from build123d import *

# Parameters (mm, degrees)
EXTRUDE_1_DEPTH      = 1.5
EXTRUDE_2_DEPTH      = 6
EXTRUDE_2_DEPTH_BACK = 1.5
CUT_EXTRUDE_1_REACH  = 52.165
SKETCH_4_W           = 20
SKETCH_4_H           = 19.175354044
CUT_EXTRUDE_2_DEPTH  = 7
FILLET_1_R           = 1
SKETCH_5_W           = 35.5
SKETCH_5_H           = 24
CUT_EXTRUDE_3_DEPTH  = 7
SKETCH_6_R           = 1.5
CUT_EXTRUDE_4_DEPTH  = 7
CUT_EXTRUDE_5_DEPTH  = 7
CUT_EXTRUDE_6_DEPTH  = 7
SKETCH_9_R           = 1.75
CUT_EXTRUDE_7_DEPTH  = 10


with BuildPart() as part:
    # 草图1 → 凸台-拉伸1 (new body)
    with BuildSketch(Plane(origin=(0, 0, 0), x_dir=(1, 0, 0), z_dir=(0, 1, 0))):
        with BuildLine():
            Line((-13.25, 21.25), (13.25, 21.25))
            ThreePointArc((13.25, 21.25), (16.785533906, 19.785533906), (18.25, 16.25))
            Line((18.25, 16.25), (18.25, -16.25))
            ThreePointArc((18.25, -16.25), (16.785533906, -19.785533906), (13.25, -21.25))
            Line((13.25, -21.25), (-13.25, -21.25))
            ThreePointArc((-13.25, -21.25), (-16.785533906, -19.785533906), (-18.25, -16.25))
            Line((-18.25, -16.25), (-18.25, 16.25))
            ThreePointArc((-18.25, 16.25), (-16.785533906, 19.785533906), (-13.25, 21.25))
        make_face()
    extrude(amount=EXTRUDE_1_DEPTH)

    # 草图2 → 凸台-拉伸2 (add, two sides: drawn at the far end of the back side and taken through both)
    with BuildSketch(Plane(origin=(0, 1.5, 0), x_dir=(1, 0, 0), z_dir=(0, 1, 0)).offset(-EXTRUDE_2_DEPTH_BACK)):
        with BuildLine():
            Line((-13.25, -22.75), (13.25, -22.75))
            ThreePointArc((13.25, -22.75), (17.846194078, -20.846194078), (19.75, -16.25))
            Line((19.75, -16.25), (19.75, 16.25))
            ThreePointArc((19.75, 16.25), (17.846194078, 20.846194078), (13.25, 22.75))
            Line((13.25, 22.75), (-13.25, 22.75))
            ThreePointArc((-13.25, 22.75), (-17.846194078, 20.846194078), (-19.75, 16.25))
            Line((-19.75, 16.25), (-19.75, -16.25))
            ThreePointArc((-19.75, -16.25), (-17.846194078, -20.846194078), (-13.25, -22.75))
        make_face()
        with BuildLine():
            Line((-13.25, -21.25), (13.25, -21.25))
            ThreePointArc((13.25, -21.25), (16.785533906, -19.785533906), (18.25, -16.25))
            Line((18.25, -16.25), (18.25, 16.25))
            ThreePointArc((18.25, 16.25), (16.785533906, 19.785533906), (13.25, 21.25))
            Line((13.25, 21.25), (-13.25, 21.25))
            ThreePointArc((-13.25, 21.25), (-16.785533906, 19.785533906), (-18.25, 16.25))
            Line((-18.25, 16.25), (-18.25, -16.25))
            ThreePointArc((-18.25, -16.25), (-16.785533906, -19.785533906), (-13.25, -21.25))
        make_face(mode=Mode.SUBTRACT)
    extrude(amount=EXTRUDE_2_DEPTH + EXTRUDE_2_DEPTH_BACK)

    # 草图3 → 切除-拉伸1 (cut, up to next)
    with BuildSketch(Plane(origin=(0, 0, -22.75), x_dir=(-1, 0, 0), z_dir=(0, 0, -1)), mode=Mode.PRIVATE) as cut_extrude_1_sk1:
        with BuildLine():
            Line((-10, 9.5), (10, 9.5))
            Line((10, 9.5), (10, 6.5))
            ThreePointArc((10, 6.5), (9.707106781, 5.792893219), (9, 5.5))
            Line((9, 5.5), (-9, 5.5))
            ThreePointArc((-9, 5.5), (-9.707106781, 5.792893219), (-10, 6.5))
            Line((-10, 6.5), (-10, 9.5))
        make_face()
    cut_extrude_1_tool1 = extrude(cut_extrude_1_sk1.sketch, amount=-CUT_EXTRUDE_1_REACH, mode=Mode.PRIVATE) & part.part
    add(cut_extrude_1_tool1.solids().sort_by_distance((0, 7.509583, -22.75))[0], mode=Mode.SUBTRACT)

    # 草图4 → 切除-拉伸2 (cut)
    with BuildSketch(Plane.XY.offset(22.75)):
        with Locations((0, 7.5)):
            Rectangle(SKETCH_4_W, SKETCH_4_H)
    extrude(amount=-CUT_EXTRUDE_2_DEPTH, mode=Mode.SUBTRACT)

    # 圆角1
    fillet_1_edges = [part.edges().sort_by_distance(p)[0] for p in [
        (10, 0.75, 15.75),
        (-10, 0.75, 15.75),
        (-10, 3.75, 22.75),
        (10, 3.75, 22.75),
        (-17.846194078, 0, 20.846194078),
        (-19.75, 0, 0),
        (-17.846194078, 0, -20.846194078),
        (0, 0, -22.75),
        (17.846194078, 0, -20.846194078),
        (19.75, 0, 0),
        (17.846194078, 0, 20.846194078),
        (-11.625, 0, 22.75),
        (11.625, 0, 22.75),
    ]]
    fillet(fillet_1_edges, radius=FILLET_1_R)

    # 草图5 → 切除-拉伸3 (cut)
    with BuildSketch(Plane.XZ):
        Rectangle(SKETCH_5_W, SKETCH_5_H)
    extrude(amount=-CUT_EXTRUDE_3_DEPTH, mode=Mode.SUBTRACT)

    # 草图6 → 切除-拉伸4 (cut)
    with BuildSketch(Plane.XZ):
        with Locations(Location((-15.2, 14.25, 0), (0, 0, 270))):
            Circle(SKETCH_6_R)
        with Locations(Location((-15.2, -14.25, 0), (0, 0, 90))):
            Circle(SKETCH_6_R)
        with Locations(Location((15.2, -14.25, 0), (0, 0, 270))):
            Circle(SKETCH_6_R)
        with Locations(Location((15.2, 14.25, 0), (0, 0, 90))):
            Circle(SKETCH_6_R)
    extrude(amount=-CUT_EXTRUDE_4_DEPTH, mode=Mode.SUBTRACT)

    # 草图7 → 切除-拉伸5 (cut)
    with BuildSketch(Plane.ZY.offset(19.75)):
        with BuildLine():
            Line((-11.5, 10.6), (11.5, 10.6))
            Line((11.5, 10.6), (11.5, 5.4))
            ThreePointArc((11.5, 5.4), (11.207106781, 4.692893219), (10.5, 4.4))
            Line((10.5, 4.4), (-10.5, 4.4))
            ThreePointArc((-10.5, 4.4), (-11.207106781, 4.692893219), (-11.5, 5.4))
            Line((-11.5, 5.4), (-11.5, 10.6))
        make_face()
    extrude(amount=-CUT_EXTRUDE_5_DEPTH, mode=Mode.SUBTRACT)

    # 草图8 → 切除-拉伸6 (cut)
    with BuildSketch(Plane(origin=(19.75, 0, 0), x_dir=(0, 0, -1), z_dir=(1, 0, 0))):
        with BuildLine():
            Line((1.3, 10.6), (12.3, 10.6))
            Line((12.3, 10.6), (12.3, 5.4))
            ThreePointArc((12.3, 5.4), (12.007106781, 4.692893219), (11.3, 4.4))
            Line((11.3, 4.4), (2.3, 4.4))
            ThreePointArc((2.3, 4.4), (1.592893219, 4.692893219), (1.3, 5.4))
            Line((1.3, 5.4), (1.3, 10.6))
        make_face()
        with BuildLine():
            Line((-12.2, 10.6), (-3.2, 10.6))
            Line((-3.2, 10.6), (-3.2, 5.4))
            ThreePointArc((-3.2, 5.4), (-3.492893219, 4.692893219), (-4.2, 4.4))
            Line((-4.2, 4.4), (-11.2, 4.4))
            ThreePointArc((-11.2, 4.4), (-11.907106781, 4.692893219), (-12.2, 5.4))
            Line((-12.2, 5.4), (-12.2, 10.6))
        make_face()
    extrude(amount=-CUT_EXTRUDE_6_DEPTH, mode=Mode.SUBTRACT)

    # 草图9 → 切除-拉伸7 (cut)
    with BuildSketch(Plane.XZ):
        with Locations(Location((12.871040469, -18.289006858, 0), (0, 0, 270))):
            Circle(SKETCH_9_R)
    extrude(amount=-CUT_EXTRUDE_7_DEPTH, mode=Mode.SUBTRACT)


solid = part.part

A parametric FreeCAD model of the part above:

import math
import FreeCAD as App
import Part
import Sketcher

V = App.Vector


def edges_at(feature, points):
    """Names of the edges that pass closest to the given points."""
    edges = feature.Shape.Edges
    near = lambda p: min(range(len(edges)), key=lambda i: edges[i].distToShape(Part.Vertex(*p))[0])
    return sorted({f"Edge{near(p) + 1}" for p in points})

doc = App.newDocument("Part")
body = doc.addObject("PartDesign::Body", "Body")

sketch1 = body.newObject("Sketcher::SketchObject", "Sketch")
sketch1.AttachmentSupport = (doc.getObject("XZ_Plane"), [""])
sketch1.MapMode = "FlatFace"
sketch1.addGeometry([
    Part.LineSegment(V(13, -21, 0), V(-13, -21, 0)),
    Part.ArcOfCircle(Part.Circle(V(-13, -16, 0), V(0, 0, 1), 5), math.radians(180), math.radians(270)),
    Part.LineSegment(V(-18, -16, 0), V(-18, 16, 0)),
    Part.ArcOfCircle(Part.Circle(V(-13, 16, 0), V(0, 0, 1), 5), math.radians(90), math.radians(180)),
    Part.LineSegment(V(-13, 21, 0), V(13, 21, 0)),
    Part.ArcOfCircle(Part.Circle(V(13, 16, 0), V(0, 0, 1), 5), math.radians(0), math.radians(90)),
    Part.LineSegment(V(18, 16, 0), V(18, -16, 0)),
    Part.ArcOfCircle(Part.Circle(V(13, -16, 0), V(0, 0, 1), 5), math.radians(-90), math.radians(0)),
], False)
sketch1.addConstraint([
    Sketcher.Constraint("Tangent", 0, 2, 1, 2),
    Sketcher.Constraint("Tangent", 1, 1, 2, 1),
    Sketcher.Constraint("Tangent", 2, 2, 3, 2),
    Sketcher.Constraint("Tangent", 3, 1, 4, 1),
    Sketcher.Constraint("Tangent", 4, 2, 5, 2),
    Sketcher.Constraint("Tangent", 5, 1, 6, 1),
    Sketcher.Constraint("Tangent", 6, 2, 7, 2),
    Sketcher.Constraint("Tangent", 7, 1, 0, 1),
    Sketcher.Constraint("Horizontal", 0),
    Sketcher.Constraint("Vertical", 2),
    Sketcher.Constraint("Horizontal", 4),
    Sketcher.Constraint("Vertical", 6),
    Sketcher.Constraint("Equal", 1, 3),
    Sketcher.Constraint("Equal", 3, 5),
    Sketcher.Constraint("Equal", 5, 7),
    Sketcher.Constraint("Symmetric", 1, 3, 5, 3, -1, 1),
    Sketcher.Constraint("Radius", 1, 5.0),
    Sketcher.Constraint("DistanceX", 0, 2, 0, 1, 26.5),
    Sketcher.Constraint("DistanceY", 2, 1, 2, 2, 32.5),
])
pad1 = body.newObject("PartDesign::Pad", "Pad")
pad1.Profile = sketch1
pad1.Length = 1.5
pad1.Reversed = True

sketch2 = body.newObject("Sketcher::SketchObject", "Sketch001")
sketch2.AttachmentSupport = (doc.getObject("XZ_Plane"), [""])
sketch2.MapMode = "FlatFace"
sketch2.AttachmentOffset = App.Placement(V(0, 0, -1.5), App.Rotation())
sketch2.addGeometry([
    Part.LineSegment(V(-13, 23, 0), V(13, 23, 0)),
    Part.ArcOfCircle(Part.Circle(V(13, 16, 0), V(0, 0, 1), 6), math.radians(0), math.radians(90)),
    Part.LineSegment(V(20, 16, 0), V(20, -16, 0)),
    Part.ArcOfCircle(Part.Circle(V(13, -16, 0), V(0, 0, 1), 6), math.radians(-90), math.radians(0)),
    Part.LineSegment(V(13, -23, 0), V(-13, -23, 0)),
    Part.ArcOfCircle(Part.Circle(V(-13, -16, 0), V(0, 0, 1), 6), math.radians(180), math.radians(270)),
    Part.LineSegment(V(-20, -16, 0), V(-20, 16, 0)),
    Part.ArcOfCircle(Part.Circle(V(-13, 16, 0), V(0, 0, 1), 6), math.radians(90), math.radians(180)),
    Part.LineSegment(V(13, 21, 0), V(-13, 21, 0)),
    Part.ArcOfCircle(Part.Circle(V(-13, 16, 0), V(0, 0, 1), 5), math.radians(90), math.radians(180)),
    Part.LineSegment(V(-18, 16, 0), V(-18, -16, 0)),
    Part.ArcOfCircle(Part.Circle(V(-13, -16, 0), V(0, 0, 1), 5), math.radians(180), math.radians(270)),
    Part.LineSegment(V(-13, -21, 0), V(13, -21, 0)),
    Part.ArcOfCircle(Part.Circle(V(13, -16, 0), V(0, 0, 1), 5), math.radians(-90), math.radians(0)),
    Part.LineSegment(V(18, -16, 0), V(18, 16, 0)),
    Part.ArcOfCircle(Part.Circle(V(13, 16, 0), V(0, 0, 1), 5), math.radians(0), math.radians(90)),
], False)
sketch2.addConstraint([
    Sketcher.Constraint("Tangent", 0, 2, 1, 2),
    Sketcher.Constraint("Tangent", 1, 1, 2, 1),
    Sketcher.Constraint("Tangent", 2, 2, 3, 2),
    Sketcher.Constraint("Tangent", 3, 1, 4, 1),
    Sketcher.Constraint("Tangent", 4, 2, 5, 2),
    Sketcher.Constraint("Tangent", 5, 1, 6, 1),
    Sketcher.Constraint("Tangent", 6, 2, 7, 2),
    Sketcher.Constraint("Tangent", 7, 1, 0, 1),
    Sketcher.Constraint("Tangent", 8, 2, 9, 1),
    Sketcher.Constraint("Tangent", 9, 2, 10, 1),
    Sketcher.Constraint("Tangent", 10, 2, 11, 1),
    Sketcher.Constraint("Tangent", 11, 2, 12, 1),
    Sketcher.Constraint("Tangent", 12, 2, 13, 1),
    Sketcher.Constraint("Tangent", 13, 2, 14, 1),
    Sketcher.Constraint("Tangent", 14, 2, 15, 1),
    Sketcher.Constraint("Tangent", 15, 2, 8, 1),
    Sketcher.Constraint("Horizontal", 0),
    Sketcher.Constraint("Vertical", 2),
    Sketcher.Constraint("Horizontal", 4),
    Sketcher.Constraint("Vertical", 6),
    Sketcher.Constraint("Horizontal", 8),
    Sketcher.Constraint("Vertical", 10),
    Sketcher.Constraint("Horizontal", 12),
    Sketcher.Constraint("Vertical", 14),
    Sketcher.Constraint("Coincident", 9, 3, 7, 3),
    Sketcher.Constraint("Coincident", 11, 3, 5, 3),
    Sketcher.Constraint("Coincident", 13, 3, 3, 3),
    Sketcher.Constraint("Equal", 1, 3),
    Sketcher.Constraint("Equal", 3, 5),
    Sketcher.Constraint("Equal", 5, 7),
    Sketcher.Constraint("Equal", 13, 15),
    Sketcher.Constraint("Symmetric", 1, 3, 5, 3, -1, 1),
    Sketcher.Constraint("Radius", 9, 5.0),
    Sketcher.Constraint("Radius", 1, 6.5),
    Sketcher.Constraint("DistanceX", 0, 1, 0, 2, 26.5),
    Sketcher.Constraint("DistanceY", 2, 2, 2, 1, 32.5),
])
pad2 = body.newObject("PartDesign::Pad", "Pad001")
pad2.Profile = sketch2
pad2.Type = "TwoLengths"
pad2.Length = 6
pad2.Length2 = 1.5
pad2.Reversed = True

sketch3 = body.newObject("Sketcher::SketchObject", "Sketch002")
sketch3.AttachmentSupport = (doc.getObject("XY_Plane"), [""])
sketch3.MapMode = "FlatFace"
sketch3.AttachmentOffset = App.Placement(V(0, 0, -22.75), App.Rotation())
sketch3.addGeometry([
    Part.LineSegment(V(-10, 9.5, 0), V(10, 9.5, 0)),
    Part.LineSegment(V(10, 9.5, 0), V(10, 6.5, 0)),
    Part.ArcOfCircle(Part.Circle(V(9, 6.5, 0), V(0, 0, 1), 1), math.radians(-90), math.radians(0)),
    Part.LineSegment(V(9, 5.5, 0), V(-9, 5.5, 0)),
    Part.ArcOfCircle(Part.Circle(V(-9, 6.5, 0), V(0, 0, 1), 1), math.radians(-180), math.radians(-90)),
    Part.LineSegment(V(-10, 6.5, 0), V(-10, 9.5, 0)),
], False)
sketch3.addConstraint([
    Sketcher.Constraint("Coincident", 0, 2, 1, 1),
    Sketcher.Constraint("Tangent", 1, 2, 2, 2),
    Sketcher.Constraint("Tangent", 2, 1, 3, 1),
    Sketcher.Constraint("Tangent", 3, 2, 4, 2),
    Sketcher.Constraint("Tangent", 4, 1, 5, 1),
    Sketcher.Constraint("Coincident", 5, 2, 0, 1),
    Sketcher.Constraint("Horizontal", 0),
    Sketcher.Constraint("Vertical", 1),
    Sketcher.Constraint("Horizontal", 3),
    Sketcher.Constraint("Vertical", 5),
    Sketcher.Constraint("Equal", 2, 4),
    Sketcher.Constraint("Radius", 2, 1.0),
    Sketcher.Constraint("DistanceX", 0, 1, 0, 2, 20.0),
    Sketcher.Constraint("DistanceY", 1, 2, 1, 1, 3.0),
    Sketcher.Constraint("DistanceX", -1, 1, 2, 3, 9.0),
    Sketcher.Constraint("DistanceY", -1, 1, 2, 3, 6.5),
])
pocket1 = body.newObject("PartDesign::Pocket", "Pocket")
pocket1.Profile = sketch3
pocket1.Length = 1.5
pocket1.Reversed = True

sketch4 = body.newObject("Sketcher::SketchObject", "Sketch003")
sketch4.AttachmentSupport = (doc.getObject("XY_Plane"), [""])
sketch4.MapMode = "FlatFace"
sketch4.AttachmentOffset = App.Placement(V(0, 0, 22.75), App.Rotation())
sketch4.addGeometry([
    Part.LineSegment(V(-10, 17, 0), V(-10, -2, 0)),
    Part.LineSegment(V(-10, -2, 0), V(10, -2, 0)),
    Part.LineSegment(V(10, -2, 0), V(10, 17, 0)),
    Part.LineSegment(V(10, 17, 0), V(-10, 17, 0)),
], False)
sketch4.addConstraint([
    Sketcher.Constraint("Coincident", 0, 2, 1, 1),
    Sketcher.Constraint("Coincident", 1, 2, 2, 1),
    Sketcher.Constraint("Coincident", 2, 2, 3, 1),
    Sketcher.Constraint("Coincident", 3, 2, 0, 1),
    Sketcher.Constraint("Vertical", 0),
    Sketcher.Constraint("Horizontal", 1),
    Sketcher.Constraint("Vertical", 2),
    Sketcher.Constraint("Horizontal", 3),
    Sketcher.Constraint("DistanceX", 1, 1, 1, 2, 20.0),
    Sketcher.Constraint("DistanceX", 0, 2, -1, 1, 10.0),
    Sketcher.Constraint("DistanceY", 0, 2, 0, 1, 19.175354),
    Sketcher.Constraint("DistanceY", 0, 2, -1, 1, 2.087677),
])
pocket2 = body.newObject("PartDesign::Pocket", "Pocket001")
pocket2.Profile = sketch4
pocket2.Length = 7
doc.recompute()

fillet = body.newObject("PartDesign::Fillet", "Fillet")
fillet.Base = (pocket2, edges_at(pocket2, [
    (10, 0.75, 15.75),
    (-10, 0.75, 15.75),
    (-10, 3.75, 22.75),
    (10, 3.75, 22.75),
    (-17.846, 0, 20.846),
    (-19.75, 0, 0),
    (-17.846, 0, -20.846),
    (0, 0, -22.75),
    (17.846, 0, -20.846),
    (19.75, 0, 0),
    (17.846, 0, 20.846),
    (-11.625, 0, 22.75),
    (11.625, 0, 22.75),
]))
fillet.Radius = 1

sketch5 = body.newObject("Sketcher::SketchObject", "Sketch004")
sketch5.AttachmentSupport = (doc.getObject("XZ_Plane"), [""])
sketch5.MapMode = "FlatFace"
sketch5.addGeometry([
    Part.LineSegment(V(-18, 12, 0), V(-18, -12, 0)),
    Part.LineSegment(V(-18, -12, 0), V(18, -12, 0)),
    Part.LineSegment(V(18, -12, 0), V(18, 12, 0)),
    Part.LineSegment(V(18, 12, 0), V(-18, 12, 0)),
], False)
sketch5.addConstraint([
    Sketcher.Constraint("Coincident", 0, 2, 1, 1),
    Sketcher.Constraint("Coincident", 1, 2, 2, 1),
    Sketcher.Constraint("Coincident", 2, 2, 3, 1),
    Sketcher.Constraint("Coincident", 3, 2, 0, 1),
    Sketcher.Constraint("Vertical", 0),
    Sketcher.Constraint("Horizontal", 1),
    Sketcher.Constraint("Vertical", 2),
    Sketcher.Constraint("Horizontal", 3),
    Sketcher.Constraint("Symmetric", 0, 2, 2, 2, -1, 1),
    Sketcher.Constraint("DistanceY", 0, 2, 0, 1, 24.0),
    Sketcher.Constraint("DistanceX", 1, 1, 1, 2, 35.5),
])
pocket3 = body.newObject("PartDesign::Pocket", "Pocket002")
pocket3.Profile = sketch5
pocket3.Length = 7

sketch6 = body.newObject("Sketcher::SketchObject", "Sketch005")
sketch6.AttachmentSupport = (doc.getObject("XZ_Plane"), [""])
sketch6.MapMode = "FlatFace"
sketch6.addGeometry([
    Part.Circle(V(-15.2, 14.2, 0), V(0, 0, 1), 1.5),
    Part.Circle(V(-15.2, -14.2, 0), V(0, 0, 1), 1.5),
    Part.Circle(V(15.2, -14.2, 0), V(0, 0, 1), 1.5),
    Part.Circle(V(15.2, 14.2, 0), V(0, 0, 1), 1.5),
], False)
sketch6.addConstraint([
    Sketcher.Constraint("Equal", 0, 1),
    Sketcher.Constraint("Equal", 1, 2),
    Sketcher.Constraint("Equal", 2, 3),
    Sketcher.Constraint("Symmetric", 0, 3, 2, 3, -1, 1),
    Sketcher.Constraint("Symmetric", 1, 3, 3, 3, -1, 1),
    Sketcher.Constraint("Symmetric", 1, 3, 2, 3, -2),
    Sketcher.Constraint("Diameter", 0, 3.0),
    Sketcher.Constraint("DistanceX", 0, 3, -1, 1, 15.2),
    Sketcher.Constraint("DistanceY", 1, 3, 0, 3, 28.5),
])
pocket4 = body.newObject("PartDesign::Pocket", "Pocket003")
pocket4.Profile = sketch6
pocket4.Length = 7

sketch7 = body.newObject("Sketcher::SketchObject", "Sketch006")
sketch7.AttachmentSupport = (doc.getObject("YZ_Plane"), [""])
sketch7.MapMode = "FlatFace"
sketch7.AttachmentOffset = App.Placement(V(0, 0, -19.75), App.Rotation())
sketch7.addGeometry([
    Part.LineSegment(V(10.6, 11.5, 0), V(10.6, -11.5, 0)),
    Part.LineSegment(V(10.6, -11.5, 0), V(5.4, -11.5, 0)),
    Part.ArcOfCircle(Part.Circle(V(5.4, -10.5, 0), V(0, 0, 1), 1), math.radians(-180), math.radians(-90)),
    Part.LineSegment(V(4.4, -10.5, 0), V(4.4, 10.5, 0)),
    Part.ArcOfCircle(Part.Circle(V(5.4, 10.5, 0), V(0, 0, 1), 1), math.radians(90), math.radians(180)),
    Part.LineSegment(V(5.4, 11.5, 0), V(10.6, 11.5, 0)),
], False)
sketch7.addConstraint([
    Sketcher.Constraint("Coincident", 0, 2, 1, 1),
    Sketcher.Constraint("Tangent", 1, 2, 2, 2),
    Sketcher.Constraint("Tangent", 2, 1, 3, 1),
    Sketcher.Constraint("Tangent", 3, 2, 4, 2),
    Sketcher.Constraint("Tangent", 4, 1, 5, 1),
    Sketcher.Constraint("Coincident", 5, 2, 0, 1),
    Sketcher.Constraint("Vertical", 0),
    Sketcher.Constraint("Horizontal", 1),
    Sketcher.Constraint("Vertical", 3),
    Sketcher.Constraint("Horizontal", 5),
    Sketcher.Constraint("Equal", 2, 4),
    Sketcher.Constraint("Radius", 2, 1.0),
    Sketcher.Constraint("DistanceY", 0, 2, 0, 1, 23.0),
    Sketcher.Constraint("DistanceX", 1, 2, 1, 1, 5.2),
    Sketcher.Constraint("DistanceX", -1, 1, 2, 3, 5.4),
    Sketcher.Constraint("DistanceY", 2, 3, -1, 1, 10.5),
])
pocket5 = body.newObject("PartDesign::Pocket", "Pocket004")
pocket5.Profile = sketch7
pocket5.Length = 7
pocket5.Reversed = True

sketch8 = body.newObject("Sketcher::SketchObject", "Sketch007")
sketch8.AttachmentSupport = (doc.getObject("YZ_Plane"), [""])
sketch8.MapMode = "FlatFace"
sketch8.AttachmentOffset = App.Placement(V(0, 0, 19.75), App.Rotation())
sketch8.addGeometry([
    Part.LineSegment(V(10.6, -12.3, 0), V(10.6, -1.3, 0)),
    Part.LineSegment(V(10.6, -1.3, 0), V(5.4, -1.3, 0)),
    Part.ArcOfCircle(Part.Circle(V(5.4, -2.3, 0), V(0, 0, 1), 1), math.radians(90), math.radians(180)),
    Part.LineSegment(V(4.4, -2.3, 0), V(4.4, -11.3, 0)),
    Part.ArcOfCircle(Part.Circle(V(5.4, -11.3, 0), V(0, 0, 1), 1), math.radians(-180), math.radians(-90)),
    Part.LineSegment(V(5.4, -12.3, 0), V(10.6, -12.3, 0)),
    Part.LineSegment(V(10.6, 3.2, 0), V(10.6, 12.2, 0)),
    Part.LineSegment(V(10.6, 12.2, 0), V(5.4, 12.2, 0)),
    Part.ArcOfCircle(Part.Circle(V(5.4, 11.2, 0), V(0, 0, 1), 1), math.radians(90), math.radians(180)),
    Part.LineSegment(V(4.4, 11.2, 0), V(4.4, 4.2, 0)),
    Part.ArcOfCircle(Part.Circle(V(5.4, 4.2, 0), V(0, 0, 1), 1), math.radians(-180), math.radians(-90)),
    Part.LineSegment(V(5.4, 3.2, 0), V(10.6, 3.2, 0)),
], False)
sketch8.addConstraint([
    Sketcher.Constraint("Coincident", 0, 2, 1, 1),
    Sketcher.Constraint("Tangent", 1, 2, 2, 1),
    Sketcher.Constraint("Tangent", 2, 2, 3, 1),
    Sketcher.Constraint("Tangent", 3, 2, 4, 1),
    Sketcher.Constraint("Tangent", 4, 2, 5, 1),
    Sketcher.Constraint("Coincident", 5, 2, 0, 1),
    Sketcher.Constraint("Coincident", 6, 2, 7, 1),
    Sketcher.Constraint("Tangent", 7, 2, 8, 1),
    Sketcher.Constraint("Tangent", 8, 2, 9, 1),
    Sketcher.Constraint("Tangent", 9, 2, 10, 1),
    Sketcher.Constraint("Tangent", 10, 2, 11, 1),
    Sketcher.Constraint("Coincident", 11, 2, 6, 1),
    Sketcher.Constraint("Vertical", 0),
    Sketcher.Constraint("Horizontal", 1),
    Sketcher.Constraint("Vertical", 3),
    Sketcher.Constraint("Horizontal", 5),
    Sketcher.Constraint("Vertical", 6),
    Sketcher.Constraint("Horizontal", 7),
    Sketcher.Constraint("Vertical", 9),
    Sketcher.Constraint("Horizontal", 11),
    Sketcher.Constraint("Equal", 2, 4),
    Sketcher.Constraint("Equal", 4, 8),
    Sketcher.Constraint("Equal", 8, 10),
    Sketcher.Constraint("Vertical", 4, 3, 8, 3),
    Sketcher.Constraint("Vertical", 5, 2, 6, 2),
    Sketcher.Constraint("Equal", 3, 6),
    Sketcher.Constraint("Radius", 2, 1.0),
    Sketcher.Constraint("DistanceY", 0, 1, 0, 2, 11.0),
    Sketcher.Constraint("DistanceX", 1, 2, 1, 1, 5.2),
    Sketcher.Constraint("DistanceX", -1, 1, 2, 3, 5.4),
    Sketcher.Constraint("DistanceY", 2, 3, -1, 1, 2.3),
    Sketcher.Constraint("DistanceY", -1, 1, 8, 3, 11.2),
])
pocket6 = body.newObject("PartDesign::Pocket", "Pocket005")
pocket6.Profile = sketch8
pocket6.Length = 7

sketch9 = body.newObject("Sketcher::SketchObject", "Sketch008")
sketch9.AttachmentSupport = (doc.getObject("XZ_Plane"), [""])
sketch9.MapMode = "FlatFace"
sketch9.addGeometry(Part.Circle(V(12.9, -18.3, 0), V(0, 0, 1), 1.8), False)
sketch9.addConstraint([
    Sketcher.Constraint("Diameter", 0, 3.5),
    Sketcher.Constraint("DistanceX", -1, 1, 0, 3, 12.87104),
    Sketcher.Constraint("DistanceY", 0, 3, -1, 1, 18.289007),
])
pocket7 = body.newObject("PartDesign::Pocket", "Pocket006")
pocket7.Profile = sketch9
pocket7.Length = 10

doc.recompute()
